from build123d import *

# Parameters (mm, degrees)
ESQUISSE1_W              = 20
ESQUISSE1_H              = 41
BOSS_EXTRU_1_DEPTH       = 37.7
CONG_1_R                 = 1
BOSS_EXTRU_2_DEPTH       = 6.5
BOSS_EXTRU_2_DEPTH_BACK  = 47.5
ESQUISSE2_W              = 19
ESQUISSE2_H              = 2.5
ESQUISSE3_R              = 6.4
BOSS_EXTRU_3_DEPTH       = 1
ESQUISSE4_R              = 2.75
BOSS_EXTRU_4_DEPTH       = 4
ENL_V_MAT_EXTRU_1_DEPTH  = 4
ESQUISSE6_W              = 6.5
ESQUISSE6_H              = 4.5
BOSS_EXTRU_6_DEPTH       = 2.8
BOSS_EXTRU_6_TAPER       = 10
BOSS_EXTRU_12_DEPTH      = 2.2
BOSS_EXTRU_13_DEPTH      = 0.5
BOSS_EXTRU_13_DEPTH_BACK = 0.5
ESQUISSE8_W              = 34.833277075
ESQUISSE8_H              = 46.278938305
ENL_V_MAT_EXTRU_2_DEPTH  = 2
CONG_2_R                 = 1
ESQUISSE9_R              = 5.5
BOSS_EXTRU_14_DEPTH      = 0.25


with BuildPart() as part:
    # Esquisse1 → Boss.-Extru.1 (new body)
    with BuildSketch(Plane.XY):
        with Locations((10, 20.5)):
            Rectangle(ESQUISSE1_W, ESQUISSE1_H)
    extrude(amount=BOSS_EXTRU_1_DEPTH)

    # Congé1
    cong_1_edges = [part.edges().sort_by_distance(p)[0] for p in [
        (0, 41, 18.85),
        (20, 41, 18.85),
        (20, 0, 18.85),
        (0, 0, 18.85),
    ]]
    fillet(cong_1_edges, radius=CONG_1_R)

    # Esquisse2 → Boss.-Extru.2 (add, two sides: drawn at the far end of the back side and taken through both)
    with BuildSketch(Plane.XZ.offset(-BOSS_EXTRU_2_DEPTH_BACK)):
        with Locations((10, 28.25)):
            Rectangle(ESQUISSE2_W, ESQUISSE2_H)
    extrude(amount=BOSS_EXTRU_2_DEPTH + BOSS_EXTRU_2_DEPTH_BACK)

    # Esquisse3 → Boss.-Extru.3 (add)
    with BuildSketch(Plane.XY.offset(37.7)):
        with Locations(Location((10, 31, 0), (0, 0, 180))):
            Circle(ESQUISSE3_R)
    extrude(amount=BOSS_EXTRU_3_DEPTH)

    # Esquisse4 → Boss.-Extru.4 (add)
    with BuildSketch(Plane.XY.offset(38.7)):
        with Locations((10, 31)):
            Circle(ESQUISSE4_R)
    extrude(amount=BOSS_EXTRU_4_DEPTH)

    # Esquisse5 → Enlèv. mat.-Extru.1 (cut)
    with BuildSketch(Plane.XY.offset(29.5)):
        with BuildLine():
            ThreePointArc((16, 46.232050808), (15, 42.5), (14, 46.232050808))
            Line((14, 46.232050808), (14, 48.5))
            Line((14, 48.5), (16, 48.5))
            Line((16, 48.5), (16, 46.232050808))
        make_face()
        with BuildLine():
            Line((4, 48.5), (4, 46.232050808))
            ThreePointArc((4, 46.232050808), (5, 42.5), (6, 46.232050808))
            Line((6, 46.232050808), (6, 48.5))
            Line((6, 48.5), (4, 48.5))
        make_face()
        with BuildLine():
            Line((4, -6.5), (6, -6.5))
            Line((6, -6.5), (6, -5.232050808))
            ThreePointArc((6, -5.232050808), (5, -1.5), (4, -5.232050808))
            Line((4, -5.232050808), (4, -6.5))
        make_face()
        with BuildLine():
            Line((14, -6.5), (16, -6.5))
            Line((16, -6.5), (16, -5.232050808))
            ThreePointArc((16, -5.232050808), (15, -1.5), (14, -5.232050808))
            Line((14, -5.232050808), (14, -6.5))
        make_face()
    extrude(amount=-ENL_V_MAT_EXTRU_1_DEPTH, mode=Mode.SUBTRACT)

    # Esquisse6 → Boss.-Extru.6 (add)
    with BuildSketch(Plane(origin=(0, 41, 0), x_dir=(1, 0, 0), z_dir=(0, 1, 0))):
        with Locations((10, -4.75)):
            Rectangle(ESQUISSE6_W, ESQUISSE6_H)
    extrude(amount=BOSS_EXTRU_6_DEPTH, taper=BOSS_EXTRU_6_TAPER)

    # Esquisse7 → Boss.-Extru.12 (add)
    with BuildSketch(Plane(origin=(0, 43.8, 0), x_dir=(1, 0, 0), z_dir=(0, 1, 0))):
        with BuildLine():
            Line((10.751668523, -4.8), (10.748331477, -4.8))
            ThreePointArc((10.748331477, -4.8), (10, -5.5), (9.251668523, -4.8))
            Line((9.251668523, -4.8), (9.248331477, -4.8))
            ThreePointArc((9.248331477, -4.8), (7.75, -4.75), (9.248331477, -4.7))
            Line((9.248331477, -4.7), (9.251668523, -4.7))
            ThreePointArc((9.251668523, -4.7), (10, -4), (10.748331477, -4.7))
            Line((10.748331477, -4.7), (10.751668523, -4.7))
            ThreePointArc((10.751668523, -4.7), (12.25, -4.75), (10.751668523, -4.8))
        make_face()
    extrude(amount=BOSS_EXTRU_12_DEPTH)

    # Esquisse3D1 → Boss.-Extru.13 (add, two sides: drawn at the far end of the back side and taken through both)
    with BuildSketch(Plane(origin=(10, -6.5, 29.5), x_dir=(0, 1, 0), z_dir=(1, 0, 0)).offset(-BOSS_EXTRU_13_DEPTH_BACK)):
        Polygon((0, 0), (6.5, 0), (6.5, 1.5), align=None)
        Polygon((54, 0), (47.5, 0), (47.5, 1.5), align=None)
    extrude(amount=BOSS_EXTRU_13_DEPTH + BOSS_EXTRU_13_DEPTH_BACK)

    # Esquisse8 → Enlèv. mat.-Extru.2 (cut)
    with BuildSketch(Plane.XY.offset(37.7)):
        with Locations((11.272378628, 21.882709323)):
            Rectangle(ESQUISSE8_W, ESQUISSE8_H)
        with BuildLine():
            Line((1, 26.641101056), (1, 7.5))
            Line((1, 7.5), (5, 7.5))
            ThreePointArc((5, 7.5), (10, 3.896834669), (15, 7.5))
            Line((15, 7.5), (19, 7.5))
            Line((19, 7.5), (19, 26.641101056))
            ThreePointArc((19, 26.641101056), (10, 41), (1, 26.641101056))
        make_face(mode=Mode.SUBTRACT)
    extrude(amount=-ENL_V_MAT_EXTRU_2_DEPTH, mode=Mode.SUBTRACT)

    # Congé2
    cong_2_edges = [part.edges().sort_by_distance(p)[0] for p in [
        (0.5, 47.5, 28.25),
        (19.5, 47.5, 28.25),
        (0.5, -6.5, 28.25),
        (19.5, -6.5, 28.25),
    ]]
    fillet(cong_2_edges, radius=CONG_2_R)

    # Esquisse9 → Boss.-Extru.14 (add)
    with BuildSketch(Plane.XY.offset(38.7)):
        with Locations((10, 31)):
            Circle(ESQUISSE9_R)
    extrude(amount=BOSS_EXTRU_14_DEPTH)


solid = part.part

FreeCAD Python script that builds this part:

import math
import FreeCAD as App
import Part
import Sketcher
from FreeCAD import Vector
Q = App.Units.Quantity


def edges_at(feature, points):
    """Names of the edges that pass closest to the given points."""
    edges = feature.Shape.Edges
    near = lambda p: min(range(len(edges)), key=lambda i: edges[i].distToShape(Part.Vertex(*p))[0])
    return sorted({f"Edge{near(p) + 1}" for p in points})


def add_polygon(sketch, points):
    """Adds a closed chain of lines whose ends are joined by coincident constraints."""
    first, n = sketch.GeometryCount, len(points)
    for a, b in zip(points, points[1:] + points[:1]):
        sketch.addGeometry(Part.LineSegment(App.Vector(*a, 0), App.Vector(*b, 0)), False)
    for i in range(n):
        sketch.addConstraint(Sketcher.Constraint("Coincident", first + i, 2, first + (i + 1) % n, 1))

doc = App.newDocument("Part")
body = doc.addObject("PartDesign::Body", "Body")

# Sketch on XY plane
sketch1 = doc.addObject("Sketcher::SketchObject", "Sketch")
body.addObject(sketch1)
sketch1.AttachmentSupport = (doc.XY_Plane, [""])
sketch1.MapMode = "FlatFace"
add_polygon(sketch1, [(0, 41), (0, 0), (20, 0), (20, 41)])  # lines 0-3
sketch1.addConstraint([
    Sketcher.Constraint("Vertical", 0),
    Sketcher.Constraint("Horizontal", 1),
    Sketcher.Constraint("Vertical", 2),
    Sketcher.Constraint("Horizontal", 3),
    Sketcher.Constraint("Coincident", 0, 2, -1, 1),
    Sketcher.Constraint("DistanceX", 1, 1, 1, 2, Q("20 mm")),
    Sketcher.Constraint("DistanceY", 0, 2, 0, 1, Q("41 mm")),
])
pad1 = doc.addObject("PartDesign::Pad", "Pad")
body.addObject(pad1)
pad1.Profile = sketch1
pad1.Length = 37.7
doc.recompute()

fillet = doc.addObject("PartDesign::Fillet", "Fillet")
body.addObject(fillet)
fillet.Base = (pad1, edges_at(pad1, [
    (0, 41, 18.85),
    (20, 41, 18.85),
    (20, 0, 18.85),
    (0, 0, 18.85),
]))
fillet.Radius = 1

# Sketch on XZ plane
sketch2 = doc.addObject("Sketcher::SketchObject", "Sketch001")
body.addObject(sketch2)
sketch2.AttachmentSupport = (doc.XZ_Plane, [""])
sketch2.MapMode = "FlatFace"
add_polygon(sketch2, [(0.5, 29.5), (0.5, 27), (19.5, 27), (19.5, 29.5)])  # lines 0-3
sketch2.addConstraint([
    Sketcher.Constraint("Vertical", 0),
    Sketcher.Constraint("Horizontal", 1),
    Sketcher.Constraint("Vertical", 2),
    Sketcher.Constraint("Horizontal", 3),
    Sketcher.Constraint("DistanceX", 1, 1, 1, 2, Q("19 mm")),
    Sketcher.Constraint("DistanceY", 0, 2, 0, 1, Q("2.5 mm")),
    Sketcher.Constraint("DistanceY", -1, 1, 0, 2, Q("27 mm")),
    Sketcher.Constraint("DistanceX", -1, 1, 0, 2, Q("0.5 mm")),
])
pad2 = doc.addObject("PartDesign::Pad", "Pad001")
body.addObject(pad2)
pad2.Profile = sketch2
pad2.Type = "TwoLengths"
pad2.Length = 6.5
pad2.Length2 = 47.5

# Sketch on XY plane
sketch3 = doc.addObject("Sketcher::SketchObject", "Sketch002")
body.addObject(sketch3)
sketch3.AttachmentSupport = (doc.XY_Plane, [""])
sketch3.MapMode = "FlatFace"
sketch3.AttachmentOffset = App.Placement(Vector(0, 0, 37.7), App.Rotation())
sketch3.addGeometry(Part.Circle(Vector(10, 31, 0), Vector(0, 0, 1), 6), False)
sketch3.addConstraint([
    Sketcher.Constraint("Diameter", 0, Q("12.8 mm")),
    Sketcher.Constraint("DistanceX", -1, 1, 0, 3, Q("10 mm")),
    Sketcher.Constraint("DistanceY", -1, 1, 0, 3, Q("31 mm")),
])
pad3 = doc.addObject("PartDesign::Pad", "Pad002")
body.addObject(pad3)
pad3.Profile = sketch3
pad3.Length = 1

# Sketch on XY plane
sketch4 = doc.addObject("Sketcher::SketchObject", "Sketch003")
body.addObject(sketch4)
sketch4.AttachmentSupport = (doc.XY_Plane, [""])
sketch4.MapMode = "FlatFace"
sketch4.AttachmentOffset = App.Placement(Vector(0, 0, 38.7), App.Rotation())
sketch4.addGeometry(Part.Circle(Vector(10, 31, 0), Vector(0, 0, 1), 2.8), False)
sketch4.addConstraint([
    Sketcher.Constraint("Diameter", 0, Q("5.5 mm")),
    Sketcher.Constraint("DistanceX", -1, 1, 0, 3, Q("10 mm")),
    Sketcher.Constraint("DistanceY", -1, 1, 0, 3, Q("31 mm")),
])
pad4 = doc.addObject("PartDesign::Pad", "Pad003")
body.addObject(pad4)
pad4.Profile = sketch4
pad4.Length = 4

# Sketch on XY plane
sketch5 = doc.addObject("Sketcher::SketchObject", "Sketch004")
body.addObject(sketch5)
sketch5.AttachmentSupport = (doc.XY_Plane, [""])
sketch5.MapMode = "FlatFace"
sketch5.AttachmentOffset = App.Placement(Vector(0, 0, 29.5), App.Rotation())
sketch5.addGeometry([
    Part.ArcOfCircle(Part.Circle(Vector(15, 44.5, 0), Vector(0, 0, 1), 2), math.radians(120), math.radians(420)),  # 0
    Part.LineSegment(Vector(16, 46.2, 0), Vector(16, 48.5, 0)),  # 1
    Part.LineSegment(Vector(16, 48.5, 0), Vector(14, 48.5, 0)),  # 2
    Part.LineSegment(Vector(14, 48.5, 0), Vector(14, 46.2, 0)),  # 3
    Part.LineSegment(Vector(4, 48.5, 0), Vector(4, 46.2, 0)),  # 4
    Part.ArcOfCircle(Part.Circle(Vector(5, 44.5, 0), Vector(0, 0, 1), 2), math.radians(120), math.radians(420)),  # 5
    Part.LineSegment(Vector(6, 46.2, 0), Vector(6, 48.5, 0)),  # 6
    Part.LineSegment(Vector(6, 48.5, 0), Vector(4, 48.5, 0)),  # 7
    Part.LineSegment(Vector(4, -6.5, 0), Vector(6, -6.5, 0)),  # 8
    Part.LineSegment(Vector(6, -6.5, 0), Vector(6, -5.2, 0)),  # 9
    Part.ArcOfCircle(Part.Circle(Vector(5, -3.5, 0), Vector(0, 0, 1), 2), math.radians(-60), math.radians(240)),  # 10
    Part.LineSegment(Vector(4, -5.2, 0), Vector(4, -6.5, 0)),  # 11
    Part.LineSegment(Vector(14, -6.5, 0), Vector(16, -6.5, 0)),  # 12
    Part.LineSegment(Vector(16, -6.5, 0), Vector(16, -5.2, 0)),  # 13
    Part.ArcOfCircle(Part.Circle(Vector(15, -3.5, 0), Vector(0, 0, 1), 2), math.radians(-60), math.radians(240)),  # 14
    Part.LineSegment(Vector(14, -5.2, 0), Vector(14, -6.5, 0)),  # 15
], False)
sketch5.addConstraint([
    Sketcher.Constraint("Coincident", 0, 2, 1, 1),
    Sketcher.Constraint("Coincident", 1, 2, 2, 1),
    Sketcher.Constraint("Coincident", 2, 2, 3, 1),
    Sketcher.Constraint("Coincident", 3, 2, 0, 1),
    Sketcher.Constraint("Coincident", 4, 2, 5, 1),
    Sketcher.Constraint("Coincident", 5, 2, 6, 1),
    Sketcher.Constraint("Coincident", 6, 2, 7, 1),
    Sketcher.Constraint("Coincident", 7, 2, 4, 1),
    Sketcher.Constraint("Coincident", 8, 2, 9, 1),
    Sketcher.Constraint("Coincident", 9, 2, 10, 1),
    Sketcher.Constraint("Coincident", 10, 2, 11, 1),
    Sketcher.Constraint("Coincident", 11, 2, 8, 1),
    Sketcher.Constraint("Coincident", 12, 2, 13, 1),
    Sketcher.Constraint("Coincident", 13, 2, 14, 1),
    Sketcher.Constraint("Coincident", 14, 2, 15, 1),
    Sketcher.Constraint("Coincident", 15, 2, 12, 1),
    Sketcher.Constraint("Vertical", 1),
    Sketcher.Constraint("Horizontal", 2),
    Sketcher.Constraint("Vertical", 3),
    Sketcher.Constraint("Vertical", 4),
    Sketcher.Constraint("Vertical", 6),
    Sketcher.Constraint("Horizontal", 7),
    Sketcher.Constraint("Horizontal", 8),
    Sketcher.Constraint("Vertical", 9),
    Sketcher.Constraint("Vertical", 11),
    Sketcher.Constraint("Horizontal", 12),
    Sketcher.Constraint("Vertical", 13),
    Sketcher.Constraint("Vertical", 15),
    Sketcher.Constraint("Equal", 0, 5),
    Sketcher.Constraint("Equal", 5, 10),
    Sketcher.Constraint("Equal", 10, 14),
    Sketcher.Constraint("Horizontal", 0, 3, 5, 3),
    Sketcher.Constraint("Horizontal", 10, 3, 14, 3),
    Sketcher.Constraint("Horizontal", 0, 2, 3, 2),
    Sketcher.Constraint("Horizontal", 3, 2, 4, 2),
    Sketcher.Constraint("Horizontal", 4, 2, 5, 2),
    Sketcher.Constraint("Horizontal", 2, 2, 6, 2),
    Sketcher.Constraint("Horizontal", 9, 2, 10, 2),
    Sketcher.Constraint("Horizontal", 11, 2, 12, 2),
    Sketcher.Constraint("Horizontal", 10, 2, 13, 2),
    Sketcher.Constraint("Horizontal", 13, 2, 14, 2),
    Sketcher.Constraint("Vertical", 5, 3, 10, 3),
    Sketcher.Constraint("Vertical", 0, 3, 14, 3),
    Sketcher.Constraint("Vertical", 6, 2, 8, 2),
    Sketcher.Constraint("Radius", 0, Q("2 mm")),
    Sketcher.Constraint("DistanceX", 2, 2, 2, 1, Q("2 mm")),
    Sketcher.Constraint("DistanceX", -1, 1, 0, 3, Q("15 mm")),
    Sketcher.Constraint("DistanceX", -1, 1, 5, 3, Q("5 mm")),
    Sketcher.Constraint("DistanceY", 10, 3, 5, 3, Q("48 mm")),
    Sketcher.Constraint("DistanceY", 0, 3, 1, 2, Q("4 mm")),
    Sketcher.Constraint("DistanceY", 8, 2, 10, 3, Q("3 mm")),
    Sketcher.Constraint("DistanceY", -1, 1, 0, 3, Q("44.5 mm")),
])
pocket1 = doc.addObject("PartDesign::Pocket", "Pocket")
body.addObject(pocket1)
pocket1.Profile = sketch5
pocket1.Length = 4

# Sketch on XZ plane
sketch6 = doc.addObject("Sketcher::SketchObject", "Sketch005")
body.addObject(sketch6)
sketch6.AttachmentSupport = (doc.XZ_Plane, [""])
sketch6.MapMode = "FlatFace"
sketch6.AttachmentOffset = App.Placement(Vector(0, 0, -41), App.Rotation())
add_polygon(sketch6, [(6.8, 2.5), (6.8, 7), (13.2, 7), (13.2, 2.5)])  # lines 0-3
sketch6.addConstraint([
    Sketcher.Constraint("Vertical", 0),
    Sketcher.Constraint("Horizontal", 1),
    Sketcher.Constraint("Vertical", 2),
    Sketcher.Constraint("Horizontal", 3),
    Sketcher.Constraint("DistanceX", 1, 1, 1, 2, Q("6.5 mm")),
    Sketcher.Constraint("DistanceY", 0, 1, 0, 2, Q("4.5 mm")),
    Sketcher.Constraint("DistanceY", -1, 1, 0, 2, Q("7 mm")),
    Sketcher.Constraint("DistanceX", -1, 1, 0, 2, Q("6.75 mm")),
])
pad5 = doc.addObject("PartDesign::Pad", "Pad004")
body.addObject(pad5)
pad5.Profile = sketch6
pad5.Length = 2.8
pad5.Reversed = True
pad5.TaperAngle = -10

# Sketch on XZ plane
sketch7 = doc.addObject("Sketcher::SketchObject", "Sketch006")
body.addObject(sketch7)
sketch7.AttachmentSupport = (doc.XZ_Plane, [""])
sketch7.MapMode = "FlatFace"
sketch7.AttachmentOffset = App.Placement(Vector(0, 0, -43.8), App.Rotation())
sketch7.addGeometry([
    Part.LineSegment(Vector(10.7483, 4.8, 0), Vector(10.7517, 4.8, 0)),  # 0
    Part.ArcOfCircle(Part.Circle(Vector(11.5, 4.75, 0), Vector(0, 0, 1), 0.75), math.radians(-176), math.radians(176)),  # 1
    Part.LineSegment(Vector(10.7517, 4.7, 0), Vector(10.7483, 4.7, 0)),  # 2
    Part.ArcOfCircle(Part.Circle(Vector(10, 4.75, 0), Vector(0, 0, 1), 0.75), math.radians(-176), math.radians(-4)),  # 3
    Part.LineSegment(Vector(9.2517, 4.7, 0), Vector(9.2483, 4.7, 0)),  # 4
    Part.ArcOfCircle(Part.Circle(Vector(8.5, 4.75, 0), Vector(0, 0, 1), 0.75), math.radians(4), math.radians(356)),  # 5
    Part.LineSegment(Vector(9.2483, 4.8, 0), Vector(9.2517, 4.8, 0)),  # 6
    Part.ArcOfCircle(Part.Circle(Vector(10, 4.75, 0), Vector(0, 0, 1), 0.75), math.radians(4), math.radians(176)),  # 7
], False)
sketch7.addConstraint([
    Sketcher.Constraint("Coincident", 0, 2, 1, 2),
    Sketcher.Constraint("Coincident", 1, 1, 2, 1),
    Sketcher.Constraint("Coincident", 2, 2, 3, 2),
    Sketcher.Constraint("Coincident", 3, 1, 4, 1),
    Sketcher.Constraint("Coincident", 4, 2, 5, 2),
    Sketcher.Constraint("Coincident", 5, 1, 6, 1),
    Sketcher.Constraint("Coincident", 6, 2, 7, 2),
    Sketcher.Constraint("Coincident", 7, 1, 0, 1),
    Sketcher.Constraint("Horizontal", 0),
    Sketcher.Constraint("Horizontal", 2),
    Sketcher.Constraint("Horizontal", 4),
    Sketcher.Constraint("Horizontal", 6),
    Sketcher.Constraint("Coincident", 7, 3, 3, 3),
    Sketcher.Constraint("Equal", 1, 3),
    Sketcher.Constraint("Equal", 3, 5),
    Sketcher.Constraint("Equal", 5, 7),
    Sketcher.Constraint("Horizontal", 1, 3, 3, 3),
    Sketcher.Constraint("Horizontal", 3, 3, 5, 3),
    Sketcher.Constraint("Horizontal", 2, 2, 3, 1),
    Sketcher.Constraint("Horizontal", 0, 2, 5, 1),
    Sketcher.Constraint("Vertical", 0, 2, 1, 1),
    Sketcher.Constraint("Equal", 2, 4),
    Sketcher.Constraint("Radius", 1, Q("0.75 mm")),
    Sketcher.Constraint("DistanceX", -1, 1, 3, 3, Q("10 mm")),
    Sketcher.Constraint("DistanceX", 5, 3, 1, 3, Q("3 mm")),
    Sketcher.Constraint("DistanceY", -1, 1, 0, 2, Q("4.8 mm")),
    Sketcher.Constraint("DistanceY", -1, 1, 1, 1, Q("4.7 mm")),
])
pad6 = doc.addObject("PartDesign::Pad", "Pad005")
body.addObject(pad6)
pad6.Profile = sketch7
pad6.Length = 2.2
pad6.Reversed = True

# Sketch on YZ plane
sketch8 = doc.addObject("Sketcher::SketchObject", "Sketch007")
body.addObject(sketch8)
sketch8.AttachmentSupport = (doc.YZ_Plane, [""])
sketch8.MapMode = "FlatFace"
sketch8.AttachmentOffset = App.Placement(Vector(0, 0, 10), App.Rotation())
add_polygon(sketch8, [(-6.5, 29.5), (0, 29.5), (0, 31)])  # lines 0-2
add_polygon(sketch8, [(41, 29.5), (47.5, 29.5), (41, 31)])  # lines 3-5
sketch8.addConstraint([
    Sketcher.Constraint("Horizontal", 0),
    Sketcher.Constraint("Vertical", 1),
    Sketcher.Constraint("Horizontal", 3),
    Sketcher.Constraint("Vertical", 5),
    Sketcher.Constraint("PointOnObject", 0, 2, -2),
    Sketcher.Constraint("Horizontal", 2, 2, 3, 2),
    Sketcher.Constraint("Horizontal", 1, 2, 4, 2),
    Sketcher.Constraint("Equal", 0, 3),
    Sketcher.Constraint("DistanceX", 0, 1, 0, 2, Q("6.5 mm")),
    Sketcher.Constraint("DistanceY", 1, 1, 1, 2, Q("1.5 mm")),
    Sketcher.Constraint("DistanceY", -1, 1, 1, 2, Q("31 mm")),
    Sketcher.Constraint("DistanceX", -1, 1, 4, 2, Q("41 mm")),
])
pad7 = doc.addObject("PartDesign::Pad", "Pad006")
body.addObject(pad7)
pad7.Profile = sketch8
pad7.Type = "TwoLengths"
pad7.Length = 0.5
pad7.Length2 = 0.5

# Sketch on XY plane
sketch9 = doc.addObject("Sketcher::SketchObject", "Sketch008")
body.addObject(sketch9)
sketch9.AttachmentSupport = (doc.XY_Plane, [""])
sketch9.MapMode = "FlatFace"
sketch9.AttachmentOffset = App.Placement(Vector(0, 0, 37.7), App.Rotation())
add_polygon(sketch9, [(-6.1, 45), (-6.1, -1.3), (28.7, -1.3), (28.7, 45)])  # lines 0-3
sketch9.addGeometry(Part.LineSegment(Vector(1, 7.5, 0), Vector(1, 26.6, 0)), False)  # 4
sketch9.addGeometry(Part.ArcOfCircle(Part.Circle(Vector(10, 31, 0), Vector(0, 0, 1), 10), math.radians(-26), math.radians(206)), False)  # 5
sketch9.addGeometry(Part.LineSegment(Vector(19, 26.6, 0), Vector(19, 7.5, 0)), False)  # 6
sketch9.addGeometry(Part.LineSegment(Vector(19, 7.5, 0), Vector(15, 7.5, 0)), False)  # 7
sketch9.addGeometry(Part.ArcOfCircle(Part.Circle(Vector(10, 9.2, 0), Vector(0, 0, 1), 5.3), math.radians(-162), math.radians(-18)), False)  # 8
sketch9.addGeometry(Part.LineSegment(Vector(5, 7.5, 0), Vector(1, 7.5, 0)), False)  # 9
sketch9.addConstraint([
    Sketcher.Constraint("Coincident", 4, 2, 5, 2),
    Sketcher.Constraint("Coincident", 5, 1, 6, 1),
    Sketcher.Constraint("Coincident", 6, 2, 7, 1),
    Sketcher.Constraint("Coincident", 7, 2, 8, 2),
    Sketcher.Constraint("Coincident", 8, 1, 9, 1),
    Sketcher.Constraint("Coincident", 9, 2, 4, 1),
    Sketcher.Constraint("Vertical", 0),
    Sketcher.Constraint("Horizontal", 1),
    Sketcher.Constraint("Vertical", 2),
    Sketcher.Constraint("Horizontal", 3),
    Sketcher.Constraint("Vertical", 4),
    Sketcher.Constraint("Vertical", 6),
    Sketcher.Constraint("Horizontal", 7),
    Sketcher.Constraint("Horizontal", 9),
    Sketcher.Constraint("Horizontal", 4, 2, 5, 1),
    Sketcher.Constraint("Horizontal", 7, 2, 8, 1),
    Sketcher.Constraint("Vertical", 5, 3, 8, 3),
    Sketcher.Constraint("Radius", 5, Q("10 mm")),
    Sketcher.Constraint("DistanceX", 7, 2, 7, 1, Q("4 mm")),
    Sketcher.Constraint("DistanceX", -1, 1, 5, 3, Q("10 mm")),
    Sketcher.Constraint("DistanceY", -1, 1, 5, 3, Q("31 mm")),
    Sketcher.Constraint("DistanceX", -1, 1, 4, 2, Q("1 mm")),
    Sketcher.Constraint("DistanceY", -1, 1, 6, 2, Q("7.5 mm")),
    Sketcher.Constraint("Radius", 8, Q("5.270755 mm")),
    Sketcher.Constraint("DistanceY", 0, 2, 0, 1, Q("46.278938 mm")),
    Sketcher.Constraint("DistanceX", 1, 1, 1, 2, Q("34.833277 mm")),
    Sketcher.Constraint("DistanceX", 0, 2, -1, 1, Q("6.14426 mm")),
    Sketcher.Constraint("DistanceY", 0, 2, -1, 1, Q("1.25676 mm")),
])
pocket2 = doc.addObject("PartDesign::Pocket", "Pocket001")
body.addObject(pocket2)
pocket2.Profile = sketch9
pocket2.Length = 2
doc.recompute()

fillet2 = doc.addObject("PartDesign::Fillet", "Fillet001")
body.addObject(fillet2)
fillet2.Base = (pocket2, edges_at(pocket2, [
    (0.5, 47.5, 28.25),
    (19.5, 47.5, 28.25),
    (0.5, -6.5, 28.25),
    (19.5, -6.5, 28.25),
]))
fillet2.Radius = 1

# Sketch on XY plane
sketch10 = doc.addObject("Sketcher::SketchObject", "Sketch009")
body.addObject(sketch10)
sketch10.AttachmentSupport = (doc.XY_Plane, [""])
sketch10.MapMode = "FlatFace"
sketch10.AttachmentOffset = App.Placement(Vector(0, 0, 38.7), App.Rotation())
sketch10.addGeometry(Part.Circle(Vector(10, 31, 0), Vector(0, 0, 1), 6), False)
sketch10.addConstraint([
    Sketcher.Constraint("Diameter", 0, Q("11 mm")),
    Sketcher.Constraint("DistanceX", -1, 1, 0, 3, Q("10 mm")),
    Sketcher.Constraint("DistanceY", -1, 1, 0, 3, Q("31 mm")),
])
pad8 = doc.addObject("PartDesign::Pad", "Pad007")
body.addObject(pad8)
pad8.Profile = sketch10
pad8.Length = 0.25

doc.recompute()
